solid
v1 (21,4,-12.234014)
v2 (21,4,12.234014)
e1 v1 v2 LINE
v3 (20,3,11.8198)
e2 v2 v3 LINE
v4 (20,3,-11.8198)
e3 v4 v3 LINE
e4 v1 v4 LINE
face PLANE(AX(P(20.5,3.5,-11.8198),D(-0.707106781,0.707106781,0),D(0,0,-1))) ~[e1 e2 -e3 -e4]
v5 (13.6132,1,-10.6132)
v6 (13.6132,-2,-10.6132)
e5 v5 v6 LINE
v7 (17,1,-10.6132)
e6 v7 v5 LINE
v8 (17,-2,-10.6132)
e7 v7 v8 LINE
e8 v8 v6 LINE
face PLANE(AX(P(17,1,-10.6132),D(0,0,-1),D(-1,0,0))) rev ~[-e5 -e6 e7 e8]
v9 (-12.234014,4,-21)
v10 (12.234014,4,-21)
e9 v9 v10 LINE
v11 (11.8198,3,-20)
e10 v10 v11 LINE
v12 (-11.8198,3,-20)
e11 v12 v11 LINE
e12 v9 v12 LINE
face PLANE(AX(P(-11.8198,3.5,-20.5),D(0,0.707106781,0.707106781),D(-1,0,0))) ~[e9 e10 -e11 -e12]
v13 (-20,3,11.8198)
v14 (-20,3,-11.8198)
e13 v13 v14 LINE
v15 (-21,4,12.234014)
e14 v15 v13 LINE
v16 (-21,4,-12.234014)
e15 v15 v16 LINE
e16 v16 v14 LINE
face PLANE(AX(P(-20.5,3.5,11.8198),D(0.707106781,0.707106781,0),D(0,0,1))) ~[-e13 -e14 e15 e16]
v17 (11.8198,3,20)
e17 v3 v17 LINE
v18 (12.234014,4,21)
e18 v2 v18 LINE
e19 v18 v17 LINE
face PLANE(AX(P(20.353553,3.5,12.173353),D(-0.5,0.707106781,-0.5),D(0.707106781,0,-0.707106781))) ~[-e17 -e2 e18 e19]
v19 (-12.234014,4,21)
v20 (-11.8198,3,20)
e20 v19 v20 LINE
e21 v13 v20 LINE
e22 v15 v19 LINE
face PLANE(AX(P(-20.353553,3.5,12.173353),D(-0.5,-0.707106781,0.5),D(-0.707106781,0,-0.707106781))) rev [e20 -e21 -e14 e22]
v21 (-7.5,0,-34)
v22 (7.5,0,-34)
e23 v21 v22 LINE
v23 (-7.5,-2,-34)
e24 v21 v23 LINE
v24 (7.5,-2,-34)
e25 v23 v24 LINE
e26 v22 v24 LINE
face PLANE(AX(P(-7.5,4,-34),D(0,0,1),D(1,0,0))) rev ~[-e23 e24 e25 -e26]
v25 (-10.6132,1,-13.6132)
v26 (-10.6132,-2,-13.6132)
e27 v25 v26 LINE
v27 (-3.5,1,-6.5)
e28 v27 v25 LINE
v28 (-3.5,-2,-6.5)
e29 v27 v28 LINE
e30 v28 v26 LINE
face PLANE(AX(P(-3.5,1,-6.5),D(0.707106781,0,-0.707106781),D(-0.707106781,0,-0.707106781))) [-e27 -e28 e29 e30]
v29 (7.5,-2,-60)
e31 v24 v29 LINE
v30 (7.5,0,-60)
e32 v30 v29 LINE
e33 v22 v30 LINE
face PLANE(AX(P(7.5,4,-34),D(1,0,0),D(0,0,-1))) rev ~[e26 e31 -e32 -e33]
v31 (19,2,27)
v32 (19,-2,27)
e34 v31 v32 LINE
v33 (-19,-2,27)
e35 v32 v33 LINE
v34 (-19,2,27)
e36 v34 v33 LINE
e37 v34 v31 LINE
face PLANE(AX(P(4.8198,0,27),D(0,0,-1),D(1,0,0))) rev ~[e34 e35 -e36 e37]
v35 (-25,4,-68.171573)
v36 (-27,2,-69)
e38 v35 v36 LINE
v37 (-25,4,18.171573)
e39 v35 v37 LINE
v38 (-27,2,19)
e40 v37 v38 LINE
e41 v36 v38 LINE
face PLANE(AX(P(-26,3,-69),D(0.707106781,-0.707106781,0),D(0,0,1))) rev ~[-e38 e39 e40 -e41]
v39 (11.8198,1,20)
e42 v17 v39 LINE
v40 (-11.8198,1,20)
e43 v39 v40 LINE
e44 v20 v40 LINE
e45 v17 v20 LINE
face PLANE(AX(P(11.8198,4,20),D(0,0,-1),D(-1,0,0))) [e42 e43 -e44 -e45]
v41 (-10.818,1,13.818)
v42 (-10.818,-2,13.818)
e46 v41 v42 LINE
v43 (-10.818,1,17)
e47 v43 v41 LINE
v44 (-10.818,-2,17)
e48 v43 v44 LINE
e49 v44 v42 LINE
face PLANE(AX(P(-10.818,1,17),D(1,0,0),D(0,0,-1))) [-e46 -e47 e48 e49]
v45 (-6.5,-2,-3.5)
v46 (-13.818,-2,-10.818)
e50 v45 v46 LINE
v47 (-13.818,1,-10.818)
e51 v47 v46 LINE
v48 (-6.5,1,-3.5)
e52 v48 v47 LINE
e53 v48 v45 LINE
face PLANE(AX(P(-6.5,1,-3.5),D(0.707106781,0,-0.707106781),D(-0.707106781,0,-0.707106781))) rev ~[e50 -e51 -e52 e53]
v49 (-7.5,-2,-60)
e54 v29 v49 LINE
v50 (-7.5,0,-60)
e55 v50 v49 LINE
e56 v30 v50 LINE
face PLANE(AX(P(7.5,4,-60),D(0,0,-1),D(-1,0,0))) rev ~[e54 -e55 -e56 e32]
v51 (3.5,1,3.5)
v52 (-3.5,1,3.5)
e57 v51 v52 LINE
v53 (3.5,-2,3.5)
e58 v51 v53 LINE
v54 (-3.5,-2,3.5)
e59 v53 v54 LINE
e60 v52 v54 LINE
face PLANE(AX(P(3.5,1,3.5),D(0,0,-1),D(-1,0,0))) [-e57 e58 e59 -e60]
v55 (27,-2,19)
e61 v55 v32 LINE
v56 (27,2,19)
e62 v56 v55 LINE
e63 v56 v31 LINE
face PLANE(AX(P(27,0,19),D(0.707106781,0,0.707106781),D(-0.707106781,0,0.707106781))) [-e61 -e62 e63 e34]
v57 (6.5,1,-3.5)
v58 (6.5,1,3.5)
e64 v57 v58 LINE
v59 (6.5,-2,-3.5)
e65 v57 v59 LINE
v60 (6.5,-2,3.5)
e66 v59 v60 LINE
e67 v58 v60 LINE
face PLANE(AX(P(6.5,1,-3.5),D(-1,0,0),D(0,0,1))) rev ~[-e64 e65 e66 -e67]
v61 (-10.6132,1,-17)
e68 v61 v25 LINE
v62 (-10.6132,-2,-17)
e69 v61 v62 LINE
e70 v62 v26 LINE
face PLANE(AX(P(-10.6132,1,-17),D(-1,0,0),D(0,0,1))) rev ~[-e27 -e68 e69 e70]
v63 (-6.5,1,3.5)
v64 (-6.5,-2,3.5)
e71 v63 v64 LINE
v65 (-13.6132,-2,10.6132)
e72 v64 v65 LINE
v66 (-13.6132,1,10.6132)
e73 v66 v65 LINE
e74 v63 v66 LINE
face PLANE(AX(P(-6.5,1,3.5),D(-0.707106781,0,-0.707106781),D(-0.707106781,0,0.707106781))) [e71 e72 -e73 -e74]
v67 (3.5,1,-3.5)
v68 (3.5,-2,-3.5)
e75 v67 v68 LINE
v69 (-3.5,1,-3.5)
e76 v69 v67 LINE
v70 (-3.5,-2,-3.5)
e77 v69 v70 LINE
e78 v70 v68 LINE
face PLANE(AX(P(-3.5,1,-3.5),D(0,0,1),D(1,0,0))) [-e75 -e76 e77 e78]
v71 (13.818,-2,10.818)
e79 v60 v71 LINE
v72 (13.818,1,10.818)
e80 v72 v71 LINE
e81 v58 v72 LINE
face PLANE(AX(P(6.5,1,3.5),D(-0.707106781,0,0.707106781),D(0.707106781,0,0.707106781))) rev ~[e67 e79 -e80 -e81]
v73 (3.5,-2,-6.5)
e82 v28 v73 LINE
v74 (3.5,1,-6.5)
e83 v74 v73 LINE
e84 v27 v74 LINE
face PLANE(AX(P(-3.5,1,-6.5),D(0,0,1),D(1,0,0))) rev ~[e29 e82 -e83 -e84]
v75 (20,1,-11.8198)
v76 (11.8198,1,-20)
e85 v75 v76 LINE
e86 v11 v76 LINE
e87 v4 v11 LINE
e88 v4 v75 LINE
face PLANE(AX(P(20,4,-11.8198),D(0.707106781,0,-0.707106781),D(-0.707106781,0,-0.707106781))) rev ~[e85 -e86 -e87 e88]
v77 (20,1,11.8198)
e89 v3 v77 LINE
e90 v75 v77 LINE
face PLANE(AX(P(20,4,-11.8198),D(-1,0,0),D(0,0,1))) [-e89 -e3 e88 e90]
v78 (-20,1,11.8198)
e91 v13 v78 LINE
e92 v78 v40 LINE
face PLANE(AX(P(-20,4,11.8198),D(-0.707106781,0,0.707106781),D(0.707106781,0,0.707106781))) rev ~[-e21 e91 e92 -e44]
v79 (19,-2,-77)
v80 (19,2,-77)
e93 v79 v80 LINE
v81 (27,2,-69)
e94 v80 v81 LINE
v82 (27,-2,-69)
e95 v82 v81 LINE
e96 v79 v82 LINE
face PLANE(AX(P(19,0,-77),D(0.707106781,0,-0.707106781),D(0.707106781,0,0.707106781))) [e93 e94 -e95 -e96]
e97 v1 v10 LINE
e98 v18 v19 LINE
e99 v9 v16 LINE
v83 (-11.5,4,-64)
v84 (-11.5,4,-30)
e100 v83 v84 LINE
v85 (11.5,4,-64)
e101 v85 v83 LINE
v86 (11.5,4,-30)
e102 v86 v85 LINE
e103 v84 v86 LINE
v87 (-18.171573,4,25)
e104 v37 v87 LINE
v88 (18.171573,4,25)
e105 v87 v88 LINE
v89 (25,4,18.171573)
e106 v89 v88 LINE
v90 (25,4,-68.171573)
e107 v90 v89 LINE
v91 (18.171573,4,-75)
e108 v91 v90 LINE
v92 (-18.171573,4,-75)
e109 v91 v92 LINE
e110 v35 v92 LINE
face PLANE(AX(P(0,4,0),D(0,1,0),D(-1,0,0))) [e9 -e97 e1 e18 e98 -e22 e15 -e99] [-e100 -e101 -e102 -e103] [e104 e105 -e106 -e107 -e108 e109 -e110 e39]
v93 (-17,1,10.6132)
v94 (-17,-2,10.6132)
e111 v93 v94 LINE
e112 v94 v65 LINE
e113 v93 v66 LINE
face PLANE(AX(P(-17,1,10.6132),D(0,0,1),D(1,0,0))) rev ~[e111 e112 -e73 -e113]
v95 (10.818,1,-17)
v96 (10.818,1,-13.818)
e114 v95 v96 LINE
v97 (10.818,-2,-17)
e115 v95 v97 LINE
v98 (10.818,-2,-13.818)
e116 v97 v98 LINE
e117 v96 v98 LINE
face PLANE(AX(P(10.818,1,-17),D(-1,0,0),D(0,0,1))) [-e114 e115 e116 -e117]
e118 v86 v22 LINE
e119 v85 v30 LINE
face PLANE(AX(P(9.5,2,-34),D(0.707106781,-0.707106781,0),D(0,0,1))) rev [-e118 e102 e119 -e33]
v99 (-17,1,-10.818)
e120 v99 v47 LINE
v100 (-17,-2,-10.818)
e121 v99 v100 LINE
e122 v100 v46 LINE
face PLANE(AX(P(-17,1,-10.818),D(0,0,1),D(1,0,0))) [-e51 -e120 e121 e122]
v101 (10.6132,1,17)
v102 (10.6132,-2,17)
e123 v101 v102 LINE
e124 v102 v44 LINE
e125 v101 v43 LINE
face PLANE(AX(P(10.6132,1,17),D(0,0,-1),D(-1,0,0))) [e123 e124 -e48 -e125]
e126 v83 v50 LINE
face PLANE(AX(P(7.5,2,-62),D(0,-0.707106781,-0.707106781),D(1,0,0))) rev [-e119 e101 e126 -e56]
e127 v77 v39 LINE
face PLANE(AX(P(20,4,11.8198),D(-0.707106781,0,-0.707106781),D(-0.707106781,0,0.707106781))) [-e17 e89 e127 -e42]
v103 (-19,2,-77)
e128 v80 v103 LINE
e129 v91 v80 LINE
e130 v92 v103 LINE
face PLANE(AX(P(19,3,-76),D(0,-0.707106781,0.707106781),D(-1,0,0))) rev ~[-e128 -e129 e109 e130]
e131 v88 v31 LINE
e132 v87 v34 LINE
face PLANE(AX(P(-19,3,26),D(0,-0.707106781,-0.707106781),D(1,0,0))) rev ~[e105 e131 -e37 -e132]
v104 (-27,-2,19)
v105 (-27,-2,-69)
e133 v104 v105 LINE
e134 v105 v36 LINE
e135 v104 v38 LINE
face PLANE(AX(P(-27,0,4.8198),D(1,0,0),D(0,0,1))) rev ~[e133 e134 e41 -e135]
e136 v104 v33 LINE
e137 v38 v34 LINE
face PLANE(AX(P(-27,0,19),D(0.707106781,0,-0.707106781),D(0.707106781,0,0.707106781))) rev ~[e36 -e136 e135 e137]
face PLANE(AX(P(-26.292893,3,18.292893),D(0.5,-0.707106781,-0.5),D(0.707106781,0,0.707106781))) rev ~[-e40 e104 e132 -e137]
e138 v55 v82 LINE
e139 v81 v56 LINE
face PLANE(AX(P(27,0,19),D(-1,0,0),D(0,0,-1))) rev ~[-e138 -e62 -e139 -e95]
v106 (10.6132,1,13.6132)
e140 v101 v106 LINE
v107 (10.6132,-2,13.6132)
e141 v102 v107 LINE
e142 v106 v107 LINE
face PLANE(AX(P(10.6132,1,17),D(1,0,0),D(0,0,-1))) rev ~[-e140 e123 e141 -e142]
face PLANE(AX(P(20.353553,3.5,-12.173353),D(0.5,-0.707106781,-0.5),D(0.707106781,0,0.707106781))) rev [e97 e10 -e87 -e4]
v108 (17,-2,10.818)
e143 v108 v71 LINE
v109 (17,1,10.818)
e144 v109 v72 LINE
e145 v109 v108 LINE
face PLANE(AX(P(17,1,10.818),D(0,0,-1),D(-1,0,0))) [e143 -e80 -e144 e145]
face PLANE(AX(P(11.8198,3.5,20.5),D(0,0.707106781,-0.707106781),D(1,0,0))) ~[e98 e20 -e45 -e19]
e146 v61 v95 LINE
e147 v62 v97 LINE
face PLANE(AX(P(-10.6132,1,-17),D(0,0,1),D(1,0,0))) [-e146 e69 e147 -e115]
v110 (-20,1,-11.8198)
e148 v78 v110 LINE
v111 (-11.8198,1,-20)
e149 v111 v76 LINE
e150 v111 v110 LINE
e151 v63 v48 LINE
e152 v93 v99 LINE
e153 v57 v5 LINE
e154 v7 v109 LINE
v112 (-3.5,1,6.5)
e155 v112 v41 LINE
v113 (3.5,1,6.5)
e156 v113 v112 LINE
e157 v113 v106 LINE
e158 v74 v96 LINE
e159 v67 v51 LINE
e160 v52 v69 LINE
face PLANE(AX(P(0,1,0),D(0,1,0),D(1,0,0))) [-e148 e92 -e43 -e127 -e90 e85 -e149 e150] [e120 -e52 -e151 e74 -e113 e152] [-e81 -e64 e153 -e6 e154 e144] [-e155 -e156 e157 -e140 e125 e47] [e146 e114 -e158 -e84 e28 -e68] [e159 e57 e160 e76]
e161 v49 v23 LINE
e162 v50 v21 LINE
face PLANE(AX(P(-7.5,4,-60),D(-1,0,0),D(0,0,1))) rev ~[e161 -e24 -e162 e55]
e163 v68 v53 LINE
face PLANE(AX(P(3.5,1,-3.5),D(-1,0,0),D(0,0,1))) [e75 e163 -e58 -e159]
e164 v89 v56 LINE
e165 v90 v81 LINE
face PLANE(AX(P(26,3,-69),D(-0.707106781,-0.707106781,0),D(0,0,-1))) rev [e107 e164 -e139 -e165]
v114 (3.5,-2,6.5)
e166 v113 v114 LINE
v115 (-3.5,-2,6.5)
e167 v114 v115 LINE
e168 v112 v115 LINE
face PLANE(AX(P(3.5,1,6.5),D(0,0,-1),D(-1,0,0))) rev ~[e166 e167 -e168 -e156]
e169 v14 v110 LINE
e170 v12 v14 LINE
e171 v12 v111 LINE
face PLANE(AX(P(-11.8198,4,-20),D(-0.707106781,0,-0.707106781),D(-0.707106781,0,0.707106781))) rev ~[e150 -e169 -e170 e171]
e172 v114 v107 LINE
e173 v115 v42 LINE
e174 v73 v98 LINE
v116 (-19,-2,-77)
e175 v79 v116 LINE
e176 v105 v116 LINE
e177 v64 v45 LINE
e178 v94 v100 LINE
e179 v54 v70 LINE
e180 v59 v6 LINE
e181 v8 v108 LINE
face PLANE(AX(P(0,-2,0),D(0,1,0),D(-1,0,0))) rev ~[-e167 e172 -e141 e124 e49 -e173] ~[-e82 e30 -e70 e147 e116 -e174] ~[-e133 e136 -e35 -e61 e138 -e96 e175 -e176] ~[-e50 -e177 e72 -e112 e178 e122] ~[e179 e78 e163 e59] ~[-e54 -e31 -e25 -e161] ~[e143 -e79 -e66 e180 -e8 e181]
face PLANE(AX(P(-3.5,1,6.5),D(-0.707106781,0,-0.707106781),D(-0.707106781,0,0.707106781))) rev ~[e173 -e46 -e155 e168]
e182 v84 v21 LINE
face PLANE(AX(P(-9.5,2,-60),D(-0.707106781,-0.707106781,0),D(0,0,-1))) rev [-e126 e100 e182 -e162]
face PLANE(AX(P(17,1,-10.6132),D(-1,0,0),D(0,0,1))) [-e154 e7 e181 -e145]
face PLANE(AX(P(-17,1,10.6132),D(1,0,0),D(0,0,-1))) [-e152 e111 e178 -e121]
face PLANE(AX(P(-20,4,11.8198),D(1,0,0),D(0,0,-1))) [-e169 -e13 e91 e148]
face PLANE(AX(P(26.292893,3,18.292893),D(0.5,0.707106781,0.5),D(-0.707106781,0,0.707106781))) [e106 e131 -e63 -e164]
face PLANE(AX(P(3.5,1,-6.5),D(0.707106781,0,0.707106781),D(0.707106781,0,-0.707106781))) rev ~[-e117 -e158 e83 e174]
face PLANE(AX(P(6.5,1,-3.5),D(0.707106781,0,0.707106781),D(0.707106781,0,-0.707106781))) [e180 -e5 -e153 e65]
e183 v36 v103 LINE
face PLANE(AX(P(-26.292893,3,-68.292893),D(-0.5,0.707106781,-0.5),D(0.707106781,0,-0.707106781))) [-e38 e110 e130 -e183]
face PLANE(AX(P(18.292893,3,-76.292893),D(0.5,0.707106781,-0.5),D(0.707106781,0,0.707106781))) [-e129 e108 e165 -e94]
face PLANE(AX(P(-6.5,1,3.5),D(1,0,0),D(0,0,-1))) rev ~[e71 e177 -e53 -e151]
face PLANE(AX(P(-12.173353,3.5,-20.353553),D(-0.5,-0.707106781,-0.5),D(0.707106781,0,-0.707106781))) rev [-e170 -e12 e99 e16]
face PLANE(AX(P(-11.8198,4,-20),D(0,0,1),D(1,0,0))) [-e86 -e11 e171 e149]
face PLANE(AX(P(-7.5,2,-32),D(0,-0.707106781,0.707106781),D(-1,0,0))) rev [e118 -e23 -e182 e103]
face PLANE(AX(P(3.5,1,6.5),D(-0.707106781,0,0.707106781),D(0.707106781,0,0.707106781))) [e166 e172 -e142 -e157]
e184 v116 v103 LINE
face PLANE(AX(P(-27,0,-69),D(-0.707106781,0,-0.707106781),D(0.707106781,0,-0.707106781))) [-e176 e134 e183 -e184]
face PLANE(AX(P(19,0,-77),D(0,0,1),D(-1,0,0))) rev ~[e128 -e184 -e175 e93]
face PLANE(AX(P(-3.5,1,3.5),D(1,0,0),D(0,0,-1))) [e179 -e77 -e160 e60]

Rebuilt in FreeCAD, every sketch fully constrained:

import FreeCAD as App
import Part
import Sketcher

V = App.Vector
Q = App.Units.Quantity


def edges_at(feature, points):
    """Names of the edges that pass closest to the given points."""
    edges = feature.Shape.Edges
    near = lambda p: min(range(len(edges)), key=lambda i: edges[i].distToShape(Part.Vertex(*p))[0])
    return sorted({f"Edge{near(p) + 1}" for p in points})


def add_polygon(sketch, points):
    """Adds a closed chain of lines whose ends are joined by coincident constraints."""
    first, n = sketch.GeometryCount, len(points)
    for a, b in zip(points, points[1:] + points[:1]):
        sketch.addGeometry(Part.LineSegment(App.Vector(*a, 0), App.Vector(*b, 0)), False)
    for i in range(n):
        sketch.addConstraint(Sketcher.Constraint("Coincident", first + i, 2, first + (i + 1) % n, 1))

doc = App.newDocument("Part")
body = doc.addObject("PartDesign::Body", "Body")

# Sketch on XZ plane
sketch1 = body.newObject("Sketcher::SketchObject", "Sketch")
sketch1.AttachmentSupport = (doc.getObject("XZ_Plane"), [""])
sketch1.MapMode = "FlatFace"
add_polygon(sketch1, [(27, 19), (27, -69), (19, -77), (-19, -77), (-27, -69), (-27, 19), (-19, 27), (19, 27)])  # lines 0-7
sketch1.addConstraint(Sketcher.Constraint("Vertical", 0))
sketch1.addConstraint(Sketcher.Constraint("Horizontal", 2))
sketch1.addConstraint(Sketcher.Constraint("Vertical", 4))
sketch1.addConstraint(Sketcher.Constraint("Horizontal", 6))
sketch1.addConstraint(Sketcher.Constraint("Symmetric", 0, 2, 3, 2, -2))
sketch1.addConstraint(Sketcher.Constraint("Perpendicular", 1, 3))
sketch1.addConstraint(Sketcher.Constraint("Perpendicular", 3, 5))
sketch1.addConstraint(Sketcher.Constraint("Perpendicular", 5, 7))
sketch1.addConstraint(Sketcher.Constraint("Horizontal", 4, 2, 7, 2))
sketch1.addConstraint(Sketcher.Constraint("Vertical", 2, 2, 5, 2))
sketch1.addConstraint(Sketcher.Constraint("Vertical", 1, 2, 6, 2))
sketch1.addConstraint(Sketcher.Constraint("DistanceX", 1, 2, 0, 2, 8.0))
sketch1.addConstraint(Sketcher.Constraint("DistanceX", 2, 2, 2, 1, 38.0))
sketch1.addConstraint(Sketcher.Constraint("DistanceY", 0, 2, 0, 1, 88.0))
sketch1.addConstraint(Sketcher.Constraint("DistanceY", 0, 2, -1, 1, 69.0))
pad1 = body.newObject("PartDesign::Pad", "Pad")
pad1.Profile = sketch1
pad1.Type = "TwoLengths"
pad1.Length = 4
pad1.Length2 = 2
pad1.Reversed = True

# Sketch on XZ plane
sketch2 = body.newObject("Sketcher::SketchObject", "Sketch001")
sketch2.AttachmentSupport = (doc.getObject("XZ_Plane"), [""])
sketch2.MapMode = "FlatFace"
sketch2.AttachmentOffset = App.Placement(V(0, 0, -4), App.Rotation())
add_polygon(sketch2, [(11.8198, -20), (-11.8198, -20), (-20, -11.8198), (-20, 11.8198), (-11.8198, 20), (11.8198, 20), (20, 11.8198), (20, -11.8198)])  # lines 0-7
sketch2.addConstraint(Sketcher.Constraint("Horizontal", 0))
sketch2.addConstraint(Sketcher.Constraint("Vertical", 2))
sketch2.addConstraint(Sketcher.Constraint("Horizontal", 4))
sketch2.addConstraint(Sketcher.Constraint("Vertical", 6))
sketch2.addConstraint(Sketcher.Constraint("Symmetric", 0, 2, 4, 2, -1, 1))
sketch2.addConstraint(Sketcher.Constraint("Symmetric", 1, 2, 5, 2, -1, 1))
sketch2.addConstraint(Sketcher.Constraint("Perpendicular", 1, 3))
sketch2.addConstraint(Sketcher.Constraint("Perpendicular", 5, 7))
sketch2.addConstraint(Sketcher.Constraint("Horizontal", 2, 2, 5, 2))
sketch2.addConstraint(Sketcher.Constraint("Horizontal", 1, 2, 6, 2))
sketch2.addConstraint(Sketcher.Constraint("Vertical", 0, 2, 3, 2))
sketch2.addConstraint(Sketcher.Constraint("Equal", 4, 2))
sketch2.addConstraint(Sketcher.Constraint("DistanceY", 0, 2, -1, 1, 20.0))
sketch2.addConstraint(Sketcher.Constraint("DistanceX", 0, 2, 0, 1, 23.6396))
pocket1 = body.newObject("PartDesign::Pocket", "Pocket")
pocket1.Profile = sketch2
pocket1.Length = 3
pocket1.Reversed = True

# Sketch on XZ plane
sketch3 = body.newObject("Sketcher::SketchObject", "Sketch002")
sketch3.AttachmentSupport = (doc.getObject("XZ_Plane"), [""])
sketch3.MapMode = "FlatFace"
sketch3.AttachmentOffset = App.Placement(V(0, 0, -4), App.Rotation())
add_polygon(sketch3, [(7.5, -34), (7.5, -60), (-7.5, -60), (-7.5, -34)])  # lines 0-3
sketch3.addConstraint(Sketcher.Constraint("Vertical", 0))
sketch3.addConstraint(Sketcher.Constraint("Horizontal", 1))
sketch3.addConstraint(Sketcher.Constraint("Vertical", 2))
sketch3.addConstraint(Sketcher.Constraint("Horizontal", 3))
sketch3.addConstraint(Sketcher.Constraint("DistanceX", 1, 2, 1, 1, 15.0))
sketch3.addConstraint(Sketcher.Constraint("DistanceY", 0, 2, 0, 1, 26.0))
sketch3.addConstraint(Sketcher.Constraint("DistanceY", 0, 2, -1, 1, 60.0))
sketch3.addConstraint(Sketcher.Constraint("DistanceX", -1, 1, 0, 2, 7.5))
pocket2 = body.newObject("PartDesign::Pocket", "Pocket001")
pocket2.Profile = sketch3
pocket2.Type = "ThroughAll"
pocket2.Reversed = True
doc.recompute()

chamfer = body.newObject("PartDesign::Chamfer", "Chamfer")
chamfer.Base = (pocket2, edges_at(pocket2, [
    (7.5, 4, -47),
    (0, 4, -60),
    (-7.5, 4, -47),
    (0, 4, -34),
]))
chamfer.Size = 4

# Sketch on XZ plane
sketch4 = body.newObject("Sketcher::SketchObject", "Sketch003")
sketch4.AttachmentSupport = (doc.getObject("XZ_Plane"), [""])
sketch4.MapMode = "FlatFace"
sketch4.AttachmentOffset = App.Placement(V(0, 0, -1), App.Rotation())
add_polygon(sketch4, [(3.5, -3.5), (-3.5, -3.5), (-3.5, 3.5), (3.5, 3.5)])  # lines 0-3
add_polygon(sketch4, [(17, 10.818), (17, -10.6132), (13.6132, -10.6132), (6.5, -3.5), (6.5, 3.5), (13.818, 10.818)])  # lines 4-9
sketch4.addConstraint(Sketcher.Constraint("Horizontal", 0))
sketch4.addConstraint(Sketcher.Constraint("Vertical", 1))
sketch4.addConstraint(Sketcher.Constraint("Horizontal", 2))
sketch4.addConstraint(Sketcher.Constraint("Vertical", 3))
sketch4.addConstraint(Sketcher.Constraint("Vertical", 4))
sketch4.addConstraint(Sketcher.Constraint("Horizontal", 5))
sketch4.addConstraint(Sketcher.Constraint("Vertical", 7))
sketch4.addConstraint(Sketcher.Constraint("Horizontal", 9))
sketch4.addConstraint(Sketcher.Constraint("Symmetric", 0, 2, 2, 2, -1, 1))
sketch4.addConstraint(Sketcher.Constraint("Perpendicular", 6, 8))
sketch4.addConstraint(Sketcher.Constraint("Horizontal", 3, 2, 6, 2))
sketch4.addConstraint(Sketcher.Constraint("Horizontal", 2, 2, 7, 2))
sketch4.addConstraint(Sketcher.Constraint("Equal", 2, 1))
sketch4.addConstraint(Sketcher.Constraint("DistanceX", 0, 2, 0, 1, 7.0))
sketch4.addConstraint(Sketcher.Constraint("DistanceX", 3, 2, 6, 2, 3.0))
sketch4.addConstraint(Sketcher.Constraint("Angle", 6, Q("135 deg")))
sketch4.addConstraint(Sketcher.Constraint("DistanceX", -1, 1, 4, 2, 17.0))
sketch4.addConstraint(Sketcher.Constraint("DistanceX", 9, 1, 9, 2, 3.182))
sketch4.addConstraint(Sketcher.Constraint("DistanceX", 5, 2, 5, 1, 3.3868))
pocket3 = body.newObject("PartDesign::Pocket", "Pocket002")
pocket3.Profile = sketch4
pocket3.Type = "ThroughAll"
pocket3.Reversed = True
doc.recompute()

polarpattern = body.newObject("PartDesign::PolarPattern", "PolarPattern")
polarpattern.Originals = [pocket3]
polarpattern.Axis = (doc.getObject("Y_Axis"), [""])
polarpattern.Angle = 360
polarpattern.Occurrences = 4
body.Tip = polarpattern
doc.recompute()

chamfer2 = body.newObject("PartDesign::Chamfer", "Chamfer001")
chamfer2.Base = (polarpattern, edges_at(polarpattern, [
    (-27, 4, -25),
    (-23, 4, -73),
    (0, 4, -77),
    (23, 4, -73),
    (27, 4, -25),
    (23, 4, 23),
    (0, 4, 27),
    (-23, 4, 23),
]))
chamfer2.Size = 2
doc.recompute()

chamfer3 = body.newObject("PartDesign::Chamfer", "Chamfer002")
chamfer3.Base = (chamfer2, edges_at(chamfer2, [
    (20, 4, 0),
    (15.91, 4, -15.91),
    (0, 4, -20),
    (-15.91, 4, -15.91),
    (-20, 4, 0),
    (-15.91, 4, 15.91),
    (0, 4, 20),
    (15.91, 4, 15.91),
]))
chamfer3.Size = 1

doc.recompute()
